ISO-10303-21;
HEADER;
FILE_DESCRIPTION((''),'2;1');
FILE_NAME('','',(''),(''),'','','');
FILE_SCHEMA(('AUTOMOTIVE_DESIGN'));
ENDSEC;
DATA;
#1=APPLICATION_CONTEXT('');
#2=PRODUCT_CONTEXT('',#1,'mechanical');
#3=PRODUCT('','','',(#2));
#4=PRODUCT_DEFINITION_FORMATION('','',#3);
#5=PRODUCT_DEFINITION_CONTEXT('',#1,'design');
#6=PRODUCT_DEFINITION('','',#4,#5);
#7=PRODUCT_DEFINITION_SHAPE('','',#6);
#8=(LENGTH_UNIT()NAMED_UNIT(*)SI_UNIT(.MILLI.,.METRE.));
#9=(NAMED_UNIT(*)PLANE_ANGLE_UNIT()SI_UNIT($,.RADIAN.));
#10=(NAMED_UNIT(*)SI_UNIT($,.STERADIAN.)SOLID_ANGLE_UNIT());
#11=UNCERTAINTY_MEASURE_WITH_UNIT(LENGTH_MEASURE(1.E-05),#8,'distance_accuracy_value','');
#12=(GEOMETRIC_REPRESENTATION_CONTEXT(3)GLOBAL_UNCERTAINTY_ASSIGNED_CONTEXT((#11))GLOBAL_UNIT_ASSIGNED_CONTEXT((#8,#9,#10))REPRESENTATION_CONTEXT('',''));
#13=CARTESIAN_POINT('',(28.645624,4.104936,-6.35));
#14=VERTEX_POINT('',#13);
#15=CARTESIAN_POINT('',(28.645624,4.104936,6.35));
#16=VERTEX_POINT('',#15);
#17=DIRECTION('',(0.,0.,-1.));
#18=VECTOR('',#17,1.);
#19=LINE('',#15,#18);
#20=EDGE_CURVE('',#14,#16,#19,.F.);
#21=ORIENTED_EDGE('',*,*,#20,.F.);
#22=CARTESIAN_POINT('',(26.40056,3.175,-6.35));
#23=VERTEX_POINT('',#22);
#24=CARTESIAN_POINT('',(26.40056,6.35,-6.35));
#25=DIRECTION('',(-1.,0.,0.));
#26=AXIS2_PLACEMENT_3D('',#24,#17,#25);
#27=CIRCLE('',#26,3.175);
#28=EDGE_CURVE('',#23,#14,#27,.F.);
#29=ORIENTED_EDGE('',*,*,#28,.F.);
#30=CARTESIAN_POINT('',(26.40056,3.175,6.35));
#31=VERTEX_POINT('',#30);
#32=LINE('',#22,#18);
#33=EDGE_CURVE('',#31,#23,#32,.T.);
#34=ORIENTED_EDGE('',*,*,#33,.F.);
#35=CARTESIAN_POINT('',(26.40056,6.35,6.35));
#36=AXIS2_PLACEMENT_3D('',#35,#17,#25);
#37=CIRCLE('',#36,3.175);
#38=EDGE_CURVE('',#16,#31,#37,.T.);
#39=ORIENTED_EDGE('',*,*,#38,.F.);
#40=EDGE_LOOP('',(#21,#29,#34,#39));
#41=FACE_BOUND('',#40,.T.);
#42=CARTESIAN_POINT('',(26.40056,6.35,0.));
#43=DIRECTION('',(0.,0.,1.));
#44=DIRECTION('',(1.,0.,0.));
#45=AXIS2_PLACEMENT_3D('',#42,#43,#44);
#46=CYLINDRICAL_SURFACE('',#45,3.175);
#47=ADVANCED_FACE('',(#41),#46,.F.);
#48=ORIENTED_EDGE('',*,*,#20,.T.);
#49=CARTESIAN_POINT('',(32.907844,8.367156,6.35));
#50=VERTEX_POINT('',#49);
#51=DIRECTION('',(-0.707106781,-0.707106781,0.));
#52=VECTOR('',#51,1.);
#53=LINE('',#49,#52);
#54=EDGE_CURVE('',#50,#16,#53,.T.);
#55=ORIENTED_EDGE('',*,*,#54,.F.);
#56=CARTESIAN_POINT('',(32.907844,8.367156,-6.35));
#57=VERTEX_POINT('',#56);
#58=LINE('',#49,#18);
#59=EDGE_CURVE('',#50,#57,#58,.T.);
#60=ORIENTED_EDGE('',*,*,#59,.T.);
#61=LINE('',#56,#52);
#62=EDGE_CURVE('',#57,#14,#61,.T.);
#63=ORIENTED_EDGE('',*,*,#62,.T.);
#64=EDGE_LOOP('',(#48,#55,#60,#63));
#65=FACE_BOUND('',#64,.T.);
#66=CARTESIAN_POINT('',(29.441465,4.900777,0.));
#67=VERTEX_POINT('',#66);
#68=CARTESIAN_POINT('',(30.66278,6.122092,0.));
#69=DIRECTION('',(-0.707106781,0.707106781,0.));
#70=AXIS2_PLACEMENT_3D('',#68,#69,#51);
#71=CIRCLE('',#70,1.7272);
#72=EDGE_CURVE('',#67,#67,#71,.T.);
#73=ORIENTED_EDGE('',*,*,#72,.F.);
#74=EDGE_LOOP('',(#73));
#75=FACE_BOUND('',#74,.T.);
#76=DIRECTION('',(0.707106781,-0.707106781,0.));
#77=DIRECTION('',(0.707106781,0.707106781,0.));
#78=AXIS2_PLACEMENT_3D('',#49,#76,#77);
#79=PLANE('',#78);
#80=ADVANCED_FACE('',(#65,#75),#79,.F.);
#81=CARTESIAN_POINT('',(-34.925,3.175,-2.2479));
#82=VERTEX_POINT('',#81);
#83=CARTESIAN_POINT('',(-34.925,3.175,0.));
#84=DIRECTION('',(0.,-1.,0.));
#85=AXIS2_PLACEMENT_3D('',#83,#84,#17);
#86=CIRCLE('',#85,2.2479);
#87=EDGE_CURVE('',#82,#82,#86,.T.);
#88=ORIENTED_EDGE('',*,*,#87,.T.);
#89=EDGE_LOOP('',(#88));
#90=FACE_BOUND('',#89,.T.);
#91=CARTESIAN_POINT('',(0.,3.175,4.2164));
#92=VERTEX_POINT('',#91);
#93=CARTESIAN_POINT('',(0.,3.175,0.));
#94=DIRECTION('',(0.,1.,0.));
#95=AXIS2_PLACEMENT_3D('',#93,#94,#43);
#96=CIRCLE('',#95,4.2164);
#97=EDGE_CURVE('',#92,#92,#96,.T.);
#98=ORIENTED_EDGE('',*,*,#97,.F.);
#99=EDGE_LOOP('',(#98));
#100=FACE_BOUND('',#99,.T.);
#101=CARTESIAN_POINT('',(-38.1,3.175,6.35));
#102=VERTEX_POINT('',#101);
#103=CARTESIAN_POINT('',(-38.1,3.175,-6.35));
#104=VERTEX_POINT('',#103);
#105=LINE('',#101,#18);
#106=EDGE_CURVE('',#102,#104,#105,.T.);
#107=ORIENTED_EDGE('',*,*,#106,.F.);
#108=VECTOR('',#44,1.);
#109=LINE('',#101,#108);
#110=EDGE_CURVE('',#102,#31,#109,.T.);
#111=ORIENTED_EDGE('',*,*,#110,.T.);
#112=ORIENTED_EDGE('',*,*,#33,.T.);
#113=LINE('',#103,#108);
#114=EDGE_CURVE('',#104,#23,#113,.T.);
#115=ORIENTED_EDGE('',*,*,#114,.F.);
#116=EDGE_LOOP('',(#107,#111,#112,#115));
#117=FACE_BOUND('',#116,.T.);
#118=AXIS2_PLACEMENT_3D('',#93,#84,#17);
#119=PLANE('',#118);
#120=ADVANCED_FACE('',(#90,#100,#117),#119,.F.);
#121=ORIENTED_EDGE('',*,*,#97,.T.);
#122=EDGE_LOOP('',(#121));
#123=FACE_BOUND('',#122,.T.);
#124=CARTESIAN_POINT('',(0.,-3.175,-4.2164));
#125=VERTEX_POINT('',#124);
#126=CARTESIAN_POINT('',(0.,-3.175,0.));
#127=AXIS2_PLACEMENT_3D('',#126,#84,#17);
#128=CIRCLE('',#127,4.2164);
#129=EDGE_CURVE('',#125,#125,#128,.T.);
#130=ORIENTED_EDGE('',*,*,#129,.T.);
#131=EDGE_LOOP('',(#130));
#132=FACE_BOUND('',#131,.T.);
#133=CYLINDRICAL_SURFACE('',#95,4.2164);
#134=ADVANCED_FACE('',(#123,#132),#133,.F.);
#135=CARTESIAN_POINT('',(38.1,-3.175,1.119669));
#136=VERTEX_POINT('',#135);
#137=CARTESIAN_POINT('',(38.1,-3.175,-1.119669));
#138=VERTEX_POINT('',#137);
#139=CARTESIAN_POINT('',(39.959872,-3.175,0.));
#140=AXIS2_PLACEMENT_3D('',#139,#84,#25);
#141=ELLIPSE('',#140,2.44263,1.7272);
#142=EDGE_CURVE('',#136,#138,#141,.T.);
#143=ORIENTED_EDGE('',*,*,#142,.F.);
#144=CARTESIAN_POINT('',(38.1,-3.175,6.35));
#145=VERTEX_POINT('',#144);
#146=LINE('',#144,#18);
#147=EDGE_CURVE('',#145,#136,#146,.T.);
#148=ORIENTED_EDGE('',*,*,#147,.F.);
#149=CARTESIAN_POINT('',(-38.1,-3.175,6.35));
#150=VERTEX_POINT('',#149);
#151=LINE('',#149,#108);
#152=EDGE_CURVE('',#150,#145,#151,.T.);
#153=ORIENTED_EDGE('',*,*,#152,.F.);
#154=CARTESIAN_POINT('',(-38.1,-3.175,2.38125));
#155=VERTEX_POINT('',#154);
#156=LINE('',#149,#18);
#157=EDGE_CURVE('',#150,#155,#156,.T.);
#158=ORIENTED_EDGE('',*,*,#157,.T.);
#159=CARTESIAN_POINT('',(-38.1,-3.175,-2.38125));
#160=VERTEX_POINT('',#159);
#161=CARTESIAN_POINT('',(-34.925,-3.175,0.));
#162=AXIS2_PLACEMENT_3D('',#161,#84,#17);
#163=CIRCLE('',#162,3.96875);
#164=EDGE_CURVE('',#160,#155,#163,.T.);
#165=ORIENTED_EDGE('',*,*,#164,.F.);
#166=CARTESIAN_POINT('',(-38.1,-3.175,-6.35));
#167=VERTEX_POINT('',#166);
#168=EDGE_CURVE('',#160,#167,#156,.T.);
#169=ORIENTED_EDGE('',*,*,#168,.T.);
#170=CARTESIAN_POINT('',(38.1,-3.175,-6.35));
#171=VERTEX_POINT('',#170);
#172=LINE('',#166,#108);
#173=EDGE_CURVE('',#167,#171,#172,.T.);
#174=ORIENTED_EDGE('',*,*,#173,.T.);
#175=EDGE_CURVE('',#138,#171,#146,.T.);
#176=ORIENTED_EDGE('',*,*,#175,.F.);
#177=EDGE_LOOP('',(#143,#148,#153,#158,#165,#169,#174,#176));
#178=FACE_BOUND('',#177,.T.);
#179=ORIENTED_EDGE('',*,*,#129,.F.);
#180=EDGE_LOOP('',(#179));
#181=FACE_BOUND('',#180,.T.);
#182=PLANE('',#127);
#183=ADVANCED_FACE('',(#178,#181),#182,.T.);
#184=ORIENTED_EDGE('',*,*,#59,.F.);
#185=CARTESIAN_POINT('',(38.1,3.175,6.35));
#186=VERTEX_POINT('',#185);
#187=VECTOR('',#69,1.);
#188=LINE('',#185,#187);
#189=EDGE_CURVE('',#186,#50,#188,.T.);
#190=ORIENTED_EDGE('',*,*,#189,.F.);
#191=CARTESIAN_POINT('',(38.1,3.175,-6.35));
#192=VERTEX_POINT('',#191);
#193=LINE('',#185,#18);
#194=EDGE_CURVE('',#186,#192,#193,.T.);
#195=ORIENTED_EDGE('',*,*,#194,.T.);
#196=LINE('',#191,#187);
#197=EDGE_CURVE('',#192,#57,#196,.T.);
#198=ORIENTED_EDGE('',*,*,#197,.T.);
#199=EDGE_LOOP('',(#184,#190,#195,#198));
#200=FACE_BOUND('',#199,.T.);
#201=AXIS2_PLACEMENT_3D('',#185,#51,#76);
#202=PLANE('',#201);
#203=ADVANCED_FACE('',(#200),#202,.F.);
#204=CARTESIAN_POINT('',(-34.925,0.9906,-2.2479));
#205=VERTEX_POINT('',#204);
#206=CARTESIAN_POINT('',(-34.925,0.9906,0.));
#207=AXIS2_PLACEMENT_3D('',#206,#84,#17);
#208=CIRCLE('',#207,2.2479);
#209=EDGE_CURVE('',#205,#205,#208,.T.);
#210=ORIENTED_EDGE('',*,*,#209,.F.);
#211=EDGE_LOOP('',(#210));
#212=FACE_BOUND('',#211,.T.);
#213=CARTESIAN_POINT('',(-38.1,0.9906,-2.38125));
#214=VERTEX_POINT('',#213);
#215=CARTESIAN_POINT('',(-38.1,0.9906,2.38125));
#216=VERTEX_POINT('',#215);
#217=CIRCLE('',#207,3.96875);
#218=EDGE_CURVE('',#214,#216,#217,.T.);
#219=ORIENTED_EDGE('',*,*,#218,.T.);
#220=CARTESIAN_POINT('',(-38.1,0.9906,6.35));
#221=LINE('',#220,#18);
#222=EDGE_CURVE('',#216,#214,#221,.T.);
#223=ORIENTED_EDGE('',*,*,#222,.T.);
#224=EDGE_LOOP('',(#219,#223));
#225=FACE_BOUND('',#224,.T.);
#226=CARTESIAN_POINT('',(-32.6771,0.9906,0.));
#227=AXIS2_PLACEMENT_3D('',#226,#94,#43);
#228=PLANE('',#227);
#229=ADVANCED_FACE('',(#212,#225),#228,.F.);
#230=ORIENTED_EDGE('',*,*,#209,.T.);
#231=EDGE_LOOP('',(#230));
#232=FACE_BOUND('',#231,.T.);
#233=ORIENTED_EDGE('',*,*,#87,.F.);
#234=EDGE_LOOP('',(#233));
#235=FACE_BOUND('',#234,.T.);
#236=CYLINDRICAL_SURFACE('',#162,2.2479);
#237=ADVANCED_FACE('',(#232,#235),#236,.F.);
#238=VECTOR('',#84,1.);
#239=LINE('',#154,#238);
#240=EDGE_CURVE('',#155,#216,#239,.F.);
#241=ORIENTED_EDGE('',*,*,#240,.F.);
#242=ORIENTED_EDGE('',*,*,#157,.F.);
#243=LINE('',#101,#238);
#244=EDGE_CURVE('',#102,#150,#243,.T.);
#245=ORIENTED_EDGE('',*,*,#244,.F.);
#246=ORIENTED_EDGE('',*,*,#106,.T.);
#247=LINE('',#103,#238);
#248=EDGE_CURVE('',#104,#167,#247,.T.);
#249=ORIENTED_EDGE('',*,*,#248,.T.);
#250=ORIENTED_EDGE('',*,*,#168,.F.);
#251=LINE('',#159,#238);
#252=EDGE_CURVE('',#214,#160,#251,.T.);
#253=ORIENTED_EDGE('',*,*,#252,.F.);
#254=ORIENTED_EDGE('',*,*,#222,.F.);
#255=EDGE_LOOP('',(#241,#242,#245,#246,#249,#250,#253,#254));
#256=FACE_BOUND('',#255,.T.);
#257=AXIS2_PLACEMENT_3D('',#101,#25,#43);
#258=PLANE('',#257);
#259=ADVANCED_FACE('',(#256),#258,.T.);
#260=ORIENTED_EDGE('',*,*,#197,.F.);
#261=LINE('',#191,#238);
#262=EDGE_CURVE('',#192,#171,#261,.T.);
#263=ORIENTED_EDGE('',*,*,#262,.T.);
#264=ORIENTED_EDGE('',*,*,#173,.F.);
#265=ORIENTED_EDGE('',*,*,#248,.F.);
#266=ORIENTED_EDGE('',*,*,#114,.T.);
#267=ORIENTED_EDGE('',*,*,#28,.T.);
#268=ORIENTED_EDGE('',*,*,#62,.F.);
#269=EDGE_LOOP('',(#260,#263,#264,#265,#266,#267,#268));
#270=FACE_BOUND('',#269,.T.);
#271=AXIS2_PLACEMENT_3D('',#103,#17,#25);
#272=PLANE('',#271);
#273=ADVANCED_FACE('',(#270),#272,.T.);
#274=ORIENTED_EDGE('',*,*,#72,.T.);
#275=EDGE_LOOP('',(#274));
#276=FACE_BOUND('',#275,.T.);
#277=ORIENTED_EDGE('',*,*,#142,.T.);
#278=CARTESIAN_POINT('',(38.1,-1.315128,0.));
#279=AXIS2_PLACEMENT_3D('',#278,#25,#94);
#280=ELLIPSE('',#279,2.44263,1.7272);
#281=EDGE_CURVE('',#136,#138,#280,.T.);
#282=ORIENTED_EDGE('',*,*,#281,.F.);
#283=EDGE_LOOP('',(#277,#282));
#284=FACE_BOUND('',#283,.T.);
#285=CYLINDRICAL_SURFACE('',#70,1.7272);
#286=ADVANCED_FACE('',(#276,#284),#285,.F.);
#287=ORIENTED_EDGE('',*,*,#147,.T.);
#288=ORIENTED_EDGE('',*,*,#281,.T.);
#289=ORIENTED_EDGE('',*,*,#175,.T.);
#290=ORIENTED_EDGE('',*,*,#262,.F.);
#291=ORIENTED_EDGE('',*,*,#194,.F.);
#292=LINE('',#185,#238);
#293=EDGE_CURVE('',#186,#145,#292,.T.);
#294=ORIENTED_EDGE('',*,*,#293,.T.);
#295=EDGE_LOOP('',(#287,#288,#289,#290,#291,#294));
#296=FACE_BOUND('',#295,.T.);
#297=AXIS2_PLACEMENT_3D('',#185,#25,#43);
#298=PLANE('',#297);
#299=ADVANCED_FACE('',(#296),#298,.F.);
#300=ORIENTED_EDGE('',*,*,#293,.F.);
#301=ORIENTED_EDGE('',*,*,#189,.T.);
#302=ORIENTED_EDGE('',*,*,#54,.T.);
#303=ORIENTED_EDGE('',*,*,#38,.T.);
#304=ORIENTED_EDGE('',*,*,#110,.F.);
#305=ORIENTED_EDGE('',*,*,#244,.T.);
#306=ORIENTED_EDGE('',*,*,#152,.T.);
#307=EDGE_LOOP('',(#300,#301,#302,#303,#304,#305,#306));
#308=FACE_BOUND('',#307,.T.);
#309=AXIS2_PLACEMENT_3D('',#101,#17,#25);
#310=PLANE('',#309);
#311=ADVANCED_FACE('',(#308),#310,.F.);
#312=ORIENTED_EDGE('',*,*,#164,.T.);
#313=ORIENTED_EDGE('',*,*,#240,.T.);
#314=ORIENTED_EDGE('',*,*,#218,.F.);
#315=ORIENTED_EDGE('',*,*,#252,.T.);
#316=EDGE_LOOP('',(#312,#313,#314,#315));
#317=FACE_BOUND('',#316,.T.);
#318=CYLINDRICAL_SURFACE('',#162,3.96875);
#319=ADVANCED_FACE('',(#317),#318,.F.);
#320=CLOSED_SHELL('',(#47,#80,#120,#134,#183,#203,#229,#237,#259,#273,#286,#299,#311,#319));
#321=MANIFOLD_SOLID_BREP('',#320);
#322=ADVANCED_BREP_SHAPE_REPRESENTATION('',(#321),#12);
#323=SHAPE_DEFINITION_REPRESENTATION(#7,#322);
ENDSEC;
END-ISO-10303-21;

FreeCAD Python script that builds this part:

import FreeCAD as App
import Part
import Sketcher

V = App.Vector
Q = App.Units.Quantity


def edges_at(feature, points):
    """Names of the edges that pass closest to the given points."""
    edges = feature.Shape.Edges
    near = lambda p: min(range(len(edges)), key=lambda i: edges[i].distToShape(Part.Vertex(*p))[0])
    return sorted({f"Edge{near(p) + 1}" for p in points})

doc = App.newDocument("Part")
params = doc.addObject("Spreadsheet::Sheet", "Params")
for row, (alias, value) in enumerate([
    ("sketch1_width", "3 in"),
    ("sketch1_height", "0.5 in"),
    ("pad1_length", "0.25 in"),
    ("sketch2_diameter", "0.332 in"),
    ("hole_diameter", "0.332 in"),
    ("hole_depth", "0.65 in"),
    ("pad2_length", "0.5 in"),
    ("sketch4_diameter", "0.177 in"),
    ("hole2_diameter", "0.177 in"),
    ("hole2_depth", "0.65 in"),
    ("hole2_cbore_diameter", "0.3125 in"),
    ("hole2_cbore_depth", "0.164 in"),
    ("sketch5_diameter", "0.136 in"),
    ("hole3_diameter", "0.136 in"),
    ("fillet_radius", "0.125 in"),
], start=1):
    params.set(f"A{row}", alias)
    params.set(f"B{row}", "=" + value)
    params.setAlias(f"B{row}", alias)

body = doc.addObject("PartDesign::Body", "Body")

# Sketch on XZ plane
sketch1 = body.newObject("Sketcher::SketchObject", "Sketch")
sketch1.AttachmentSupport = (doc.getObject("XZ_Plane"), [""])
sketch1.MapMode = "FlatFace"
sketch1.addGeometry([
    Part.LineSegment(V(-38, -6, 0), V(-38, 6, 0)),
    Part.LineSegment(V(-38, 6, 0), V(38, 6, 0)),
    Part.LineSegment(V(38, 6, 0), V(38, -6, 0)),
    Part.LineSegment(V(38, -6, 0), V(-38, -6, 0)),
], False)
sketch1.addConstraint([
    Sketcher.Constraint("Coincident", 0, 2, 1, 1),
    Sketcher.Constraint("Coincident", 1, 2, 2, 1),
    Sketcher.Constraint("Coincident", 2, 2, 3, 1),
    Sketcher.Constraint("Coincident", 3, 2, 0, 1),
    Sketcher.Constraint("Vertical", 0),
    Sketcher.Constraint("Horizontal", 1),
    Sketcher.Constraint("Vertical", 2),
    Sketcher.Constraint("Horizontal", 3),
    Sketcher.Constraint("Symmetric", 0, 2, 2, 2, -1, 1),
    Sketcher.Constraint("DistanceX", 1, 1, 1, 2, Q("3 in")),
    Sketcher.Constraint("DistanceY", 0, 1, 0, 2, Q("0.5 in")),
])
sketch1.setExpression("Constraints[9]", "Params.sketch1_width")
sketch1.setExpression("Constraints[10]", "Params.sketch1_height")
pad1 = body.newObject("PartDesign::Pad", "Pad")
pad1.Profile = sketch1
pad1.setExpression("Length", "Params.pad1_length")
pad1.Midplane = True

# Sketch on XZ plane
sketch2 = body.newObject("Sketcher::SketchObject", "Sketch001")
sketch2.AttachmentSupport = (doc.getObject("XZ_Plane"), [""])
sketch2.MapMode = "FlatFace"
sketch2.AttachmentOffset = App.Placement(V(0, 0, -0.125 * 25.4), App.Rotation())
sketch2.addGeometry(Part.Circle(V(0, 0, 0), V(0, 0, 1), 4.2), False)
sketch2.addConstraint([
    Sketcher.Constraint("Coincident", 0, 3, -1, 1),
    Sketcher.Constraint("Diameter", 0, Q("0.332 in")),
])
sketch2.setExpression("Constraints[1]", "Params.sketch2_diameter")
doc.recompute()
hole = body.newObject("PartDesign::Hole", "Hole")
hole.Profile = sketch2
hole.ThreadType = "None"
hole.setExpression("Diameter", "Params.hole_diameter")
hole.DepthType = "Dimension"
hole.setExpression("Depth", "Params.hole_depth")
hole.DrillPoint = "Angled"
hole.DrillPointAngle = 118
hole.Reversed = True

# Sketch on XY plane
sketch3 = body.newObject("Sketcher::SketchObject", "Sketch002")
sketch3.AttachmentSupport = (doc.getObject("XY_Plane"), [""])
sketch3.MapMode = "FlatFace"
sketch3.addGeometry([
    Part.LineSegment(V(38, 3, 0), V(33, 8, 0)),
    Part.LineSegment(V(33, 8, 0), V(28, 3, 0)),
    Part.LineSegment(V(28, 3, 0), V(38, 3, 0)),
], False)
sketch3.addConstraint([
    Sketcher.Constraint("Coincident", 0, 2, 1, 1),
    Sketcher.Constraint("Coincident", 1, 2, 2, 1),
    Sketcher.Constraint("Coincident", 2, 2, 0, 1),
    Sketcher.Constraint("Horizontal", 2),
    Sketcher.Constraint("Perpendicular", 0, 1),
    Sketcher.Constraint("Equal", 0, 1),
    Sketcher.Constraint("DistanceX", -1, 1, 2, 2, Q("1.5 in")),
    Sketcher.Constraint("DistanceY", -1, 1, 1, 2, Q("0.125 in")),
    Sketcher.Constraint("DistanceX", 2, 1, 2, 2, Q("10.384312 mm")),
])
pad2 = body.newObject("PartDesign::Pad", "Pad001")
pad2.Profile = sketch3
pad2.setExpression("Length", "Params.pad2_length")
pad2.Midplane = True

# Sketch on XZ plane
sketch4 = body.newObject("Sketcher::SketchObject", "Sketch003")
sketch4.AttachmentSupport = (doc.getObject("XZ_Plane"), [""])
sketch4.MapMode = "FlatFace"
sketch4.AttachmentOffset = App.Placement(V(0, 0, 0.125 * 25.4), App.Rotation())
sketch4.addGeometry(Part.Circle(V(-34.9, 0, 0), V(0, 0, 1), 2.2), False)
sketch4.addConstraint([
    Sketcher.Constraint("PointOnObject", 0, 3, -1),
    Sketcher.Constraint("Diameter", 0, Q("0.177 in")),
    Sketcher.Constraint("DistanceX", 0, 3, -1, 1, Q("1.375 in")),
])
sketch4.setExpression("Constraints[1]", "Params.sketch4_diameter")
doc.recompute()
hole2 = body.newObject("PartDesign::Hole", "Hole001")
hole2.Profile = sketch4
hole2.ThreadType = "None"
hole2.setExpression("Diameter", "Params.hole2_diameter")
hole2.DepthType = "Dimension"
hole2.setExpression("Depth", "Params.hole2_depth")
hole2.DrillPoint = "Angled"
hole2.DrillPointAngle = 118
hole2.HoleCutType = "Counterbore"
hole2.setExpression("HoleCutDiameter", "Params.hole2_cbore_diameter")
hole2.setExpression("HoleCutDepth", "Params.hole2_cbore_depth")

# Sketch on an angled plane
sketch5 = body.newObject("Sketcher::SketchObject", "Sketch004")
sketch5.Placement = App.Placement(V(12.270344, -12.270344, 0), App.Rotation(V(0.707106781, 0.707106781, 0), V(0, 0, -0.999999999), V(-0.707106781, 0.707106781, 0), "ZXY"))
sketch5.addGeometry(Part.Circle(V(26, 0, 0), V(0, 0, 1), 1.7), False)
sketch5.addConstraint([
    Sketcher.Constraint("PointOnObject", 0, 3, -1),
    Sketcher.Constraint("Diameter", 0, Q("0.136 in")),
    Sketcher.Constraint("DistanceX", -1, 1, 0, 3, Q("26.010832 mm")),
])
sketch5.setExpression("Constraints[1]", "Params.sketch5_diameter")
doc.recompute()
hole3 = body.newObject("PartDesign::Hole", "Hole002")
hole3.Profile = sketch5
hole3.ThreadType = "None"
hole3.setExpression("Diameter", "Params.hole3_diameter")
hole3.DepthType = "ThroughAll"
doc.recompute()

fillet = body.newObject("PartDesign::Fillet", "Fillet")
fillet.Base = (hole3, edges_at(hole3, [(27.716, 3.175, 0)]))
fillet.setExpression("Radius", "Params.fillet_radius")

doc.recompute()
